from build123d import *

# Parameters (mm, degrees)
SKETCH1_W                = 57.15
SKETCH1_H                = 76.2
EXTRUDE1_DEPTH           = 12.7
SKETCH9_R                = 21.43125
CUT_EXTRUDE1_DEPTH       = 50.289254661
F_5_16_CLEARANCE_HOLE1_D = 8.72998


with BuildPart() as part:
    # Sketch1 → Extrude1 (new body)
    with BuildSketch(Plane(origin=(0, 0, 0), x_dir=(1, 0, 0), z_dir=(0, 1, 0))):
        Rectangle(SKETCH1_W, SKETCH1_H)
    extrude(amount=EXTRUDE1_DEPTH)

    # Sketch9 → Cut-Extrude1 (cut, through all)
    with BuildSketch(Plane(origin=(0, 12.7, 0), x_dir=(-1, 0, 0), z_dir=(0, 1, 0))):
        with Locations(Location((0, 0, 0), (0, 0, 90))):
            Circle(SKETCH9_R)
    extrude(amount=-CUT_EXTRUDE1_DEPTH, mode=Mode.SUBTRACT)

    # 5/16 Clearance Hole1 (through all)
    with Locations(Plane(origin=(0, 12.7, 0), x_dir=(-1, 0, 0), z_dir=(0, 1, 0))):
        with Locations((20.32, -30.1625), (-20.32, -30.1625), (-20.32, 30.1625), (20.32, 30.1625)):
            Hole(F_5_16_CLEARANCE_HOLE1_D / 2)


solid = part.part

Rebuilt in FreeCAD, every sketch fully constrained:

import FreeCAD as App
import Part
import Sketcher
Q = App.Units.Quantity

doc = App.newDocument("Part")
body = doc.addObject("PartDesign::Body", "Body")

# Sketch on XZ plane
sketch1 = doc.addObject("Sketcher::SketchObject", "Sketch")
body.addObject(sketch1)
sketch1.AttachmentSupport = (doc.XZ_Plane, [""])
sketch1.MapMode = "FlatFace"
sketch1.addGeometry([
    Part.LineSegment(App.Vector(-28.575, -38.1, 0), App.Vector(-28.575, 38.1, 0)),
    Part.LineSegment(App.Vector(-28.575, 38.1, 0), App.Vector(28.575, 38.1, 0)),
    Part.LineSegment(App.Vector(28.575, 38.1, 0), App.Vector(28.575, -38.1, 0)),
    Part.LineSegment(App.Vector(28.575, -38.1, 0), App.Vector(-28.575, -38.1, 0)),
], False)
sketch1.addConstraint([
    Sketcher.Constraint("Coincident", 0, 2, 1, 1),
    Sketcher.Constraint("Coincident", 1, 2, 2, 1),
    Sketcher.Constraint("Coincident", 2, 2, 3, 1),
    Sketcher.Constraint("Coincident", 3, 2, 0, 1),
    Sketcher.Constraint("Vertical", 0),
    Sketcher.Constraint("Horizontal", 1),
    Sketcher.Constraint("Vertical", 2),
    Sketcher.Constraint("Horizontal", 3),
    Sketcher.Constraint("Symmetric", 0, 2, 2, 2, -1, 1),
    Sketcher.Constraint("DistanceY", 0, 1, 0, 2, Q("3 in")),
    Sketcher.Constraint("DistanceX", 1, 1, 1, 2, Q("2.25 in")),
])
pad1 = doc.addObject("PartDesign::Pad", "Pad")
body.addObject(pad1)
pad1.Profile = sketch1
pad1.Length = Q("0.5 in")
pad1.Reversed = True

# Sketch on XZ plane
sketch2 = doc.addObject("Sketcher::SketchObject", "Sketch001")
body.addObject(sketch2)
sketch2.AttachmentSupport = (doc.XZ_Plane, [""])
sketch2.MapMode = "FlatFace"
sketch2.AttachmentOffset = App.Placement(App.Vector(0, 0, -0.5 * 25.4), App.Rotation())
sketch2.addGeometry(Part.Circle(App.Vector(0, 0, 0), App.Vector(0, 0, 1), 21.43125), False)
sketch2.addConstraint([
    Sketcher.Constraint("Coincident", 0, 3, -1, 1),
    Sketcher.Constraint("Diameter", 0, Q("1.6875 in")),
])
pocket1 = doc.addObject("PartDesign::Pocket", "Pocket")
body.addObject(pocket1)
pocket1.Profile = sketch2
pocket1.Type = "ThroughAll"
pocket1.Reversed = True

# Sketch on XZ plane
sketch3 = doc.addObject("Sketcher::SketchObject", "Sketch002")
body.addObject(sketch3)
sketch3.AttachmentSupport = (doc.XZ_Plane, [""])
sketch3.MapMode = "FlatFace"
sketch3.AttachmentOffset = App.Placement(App.Vector(0, 0, -0.5 * 25.4), App.Rotation())
sketch3.addGeometry([
    Part.Circle(App.Vector(-20.32, -30.1625, 0), App.Vector(0, 0, 1), 4.36499),
    Part.Circle(App.Vector(20.32, -30.1625, 0), App.Vector(0, 0, 1), 4.36499),
    Part.Circle(App.Vector(20.32, 30.1625, 0), App.Vector(0, 0, 1), 4.36499),
    Part.Circle(App.Vector(-20.32, 30.1625, 0), App.Vector(0, 0, 1), 4.36499),
], False)
sketch3.addConstraint([
    Sketcher.Constraint("Equal", 0, 1),
    Sketcher.Constraint("Equal", 1, 2),
    Sketcher.Constraint("Equal", 2, 3),
    Sketcher.Constraint("Symmetric", 0, 3, 2, 3, -1, 1),
    Sketcher.Constraint("Symmetric", 1, 3, 3, 3, -1, 1),
    Sketcher.Constraint("Symmetric", 0, 3, 1, 3, -2),
    Sketcher.Constraint("Diameter", 0, Q("0.3437 in")),
    Sketcher.Constraint("DistanceX", 0, 3, -1, 1, Q("0.8 in")),
    Sketcher.Constraint("DistanceY", 0, 3, -1, 1, Q("1.1875 in")),
])
doc.recompute()
hole = doc.addObject("PartDesign::Hole", "Hole")
body.addObject(hole)
hole.Profile = sketch3
hole.ThreadType = "None"
hole.Diameter = Q("0.3437 in")
hole.DepthType = "ThroughAll"
hole.Reversed = True

doc.recompute()
